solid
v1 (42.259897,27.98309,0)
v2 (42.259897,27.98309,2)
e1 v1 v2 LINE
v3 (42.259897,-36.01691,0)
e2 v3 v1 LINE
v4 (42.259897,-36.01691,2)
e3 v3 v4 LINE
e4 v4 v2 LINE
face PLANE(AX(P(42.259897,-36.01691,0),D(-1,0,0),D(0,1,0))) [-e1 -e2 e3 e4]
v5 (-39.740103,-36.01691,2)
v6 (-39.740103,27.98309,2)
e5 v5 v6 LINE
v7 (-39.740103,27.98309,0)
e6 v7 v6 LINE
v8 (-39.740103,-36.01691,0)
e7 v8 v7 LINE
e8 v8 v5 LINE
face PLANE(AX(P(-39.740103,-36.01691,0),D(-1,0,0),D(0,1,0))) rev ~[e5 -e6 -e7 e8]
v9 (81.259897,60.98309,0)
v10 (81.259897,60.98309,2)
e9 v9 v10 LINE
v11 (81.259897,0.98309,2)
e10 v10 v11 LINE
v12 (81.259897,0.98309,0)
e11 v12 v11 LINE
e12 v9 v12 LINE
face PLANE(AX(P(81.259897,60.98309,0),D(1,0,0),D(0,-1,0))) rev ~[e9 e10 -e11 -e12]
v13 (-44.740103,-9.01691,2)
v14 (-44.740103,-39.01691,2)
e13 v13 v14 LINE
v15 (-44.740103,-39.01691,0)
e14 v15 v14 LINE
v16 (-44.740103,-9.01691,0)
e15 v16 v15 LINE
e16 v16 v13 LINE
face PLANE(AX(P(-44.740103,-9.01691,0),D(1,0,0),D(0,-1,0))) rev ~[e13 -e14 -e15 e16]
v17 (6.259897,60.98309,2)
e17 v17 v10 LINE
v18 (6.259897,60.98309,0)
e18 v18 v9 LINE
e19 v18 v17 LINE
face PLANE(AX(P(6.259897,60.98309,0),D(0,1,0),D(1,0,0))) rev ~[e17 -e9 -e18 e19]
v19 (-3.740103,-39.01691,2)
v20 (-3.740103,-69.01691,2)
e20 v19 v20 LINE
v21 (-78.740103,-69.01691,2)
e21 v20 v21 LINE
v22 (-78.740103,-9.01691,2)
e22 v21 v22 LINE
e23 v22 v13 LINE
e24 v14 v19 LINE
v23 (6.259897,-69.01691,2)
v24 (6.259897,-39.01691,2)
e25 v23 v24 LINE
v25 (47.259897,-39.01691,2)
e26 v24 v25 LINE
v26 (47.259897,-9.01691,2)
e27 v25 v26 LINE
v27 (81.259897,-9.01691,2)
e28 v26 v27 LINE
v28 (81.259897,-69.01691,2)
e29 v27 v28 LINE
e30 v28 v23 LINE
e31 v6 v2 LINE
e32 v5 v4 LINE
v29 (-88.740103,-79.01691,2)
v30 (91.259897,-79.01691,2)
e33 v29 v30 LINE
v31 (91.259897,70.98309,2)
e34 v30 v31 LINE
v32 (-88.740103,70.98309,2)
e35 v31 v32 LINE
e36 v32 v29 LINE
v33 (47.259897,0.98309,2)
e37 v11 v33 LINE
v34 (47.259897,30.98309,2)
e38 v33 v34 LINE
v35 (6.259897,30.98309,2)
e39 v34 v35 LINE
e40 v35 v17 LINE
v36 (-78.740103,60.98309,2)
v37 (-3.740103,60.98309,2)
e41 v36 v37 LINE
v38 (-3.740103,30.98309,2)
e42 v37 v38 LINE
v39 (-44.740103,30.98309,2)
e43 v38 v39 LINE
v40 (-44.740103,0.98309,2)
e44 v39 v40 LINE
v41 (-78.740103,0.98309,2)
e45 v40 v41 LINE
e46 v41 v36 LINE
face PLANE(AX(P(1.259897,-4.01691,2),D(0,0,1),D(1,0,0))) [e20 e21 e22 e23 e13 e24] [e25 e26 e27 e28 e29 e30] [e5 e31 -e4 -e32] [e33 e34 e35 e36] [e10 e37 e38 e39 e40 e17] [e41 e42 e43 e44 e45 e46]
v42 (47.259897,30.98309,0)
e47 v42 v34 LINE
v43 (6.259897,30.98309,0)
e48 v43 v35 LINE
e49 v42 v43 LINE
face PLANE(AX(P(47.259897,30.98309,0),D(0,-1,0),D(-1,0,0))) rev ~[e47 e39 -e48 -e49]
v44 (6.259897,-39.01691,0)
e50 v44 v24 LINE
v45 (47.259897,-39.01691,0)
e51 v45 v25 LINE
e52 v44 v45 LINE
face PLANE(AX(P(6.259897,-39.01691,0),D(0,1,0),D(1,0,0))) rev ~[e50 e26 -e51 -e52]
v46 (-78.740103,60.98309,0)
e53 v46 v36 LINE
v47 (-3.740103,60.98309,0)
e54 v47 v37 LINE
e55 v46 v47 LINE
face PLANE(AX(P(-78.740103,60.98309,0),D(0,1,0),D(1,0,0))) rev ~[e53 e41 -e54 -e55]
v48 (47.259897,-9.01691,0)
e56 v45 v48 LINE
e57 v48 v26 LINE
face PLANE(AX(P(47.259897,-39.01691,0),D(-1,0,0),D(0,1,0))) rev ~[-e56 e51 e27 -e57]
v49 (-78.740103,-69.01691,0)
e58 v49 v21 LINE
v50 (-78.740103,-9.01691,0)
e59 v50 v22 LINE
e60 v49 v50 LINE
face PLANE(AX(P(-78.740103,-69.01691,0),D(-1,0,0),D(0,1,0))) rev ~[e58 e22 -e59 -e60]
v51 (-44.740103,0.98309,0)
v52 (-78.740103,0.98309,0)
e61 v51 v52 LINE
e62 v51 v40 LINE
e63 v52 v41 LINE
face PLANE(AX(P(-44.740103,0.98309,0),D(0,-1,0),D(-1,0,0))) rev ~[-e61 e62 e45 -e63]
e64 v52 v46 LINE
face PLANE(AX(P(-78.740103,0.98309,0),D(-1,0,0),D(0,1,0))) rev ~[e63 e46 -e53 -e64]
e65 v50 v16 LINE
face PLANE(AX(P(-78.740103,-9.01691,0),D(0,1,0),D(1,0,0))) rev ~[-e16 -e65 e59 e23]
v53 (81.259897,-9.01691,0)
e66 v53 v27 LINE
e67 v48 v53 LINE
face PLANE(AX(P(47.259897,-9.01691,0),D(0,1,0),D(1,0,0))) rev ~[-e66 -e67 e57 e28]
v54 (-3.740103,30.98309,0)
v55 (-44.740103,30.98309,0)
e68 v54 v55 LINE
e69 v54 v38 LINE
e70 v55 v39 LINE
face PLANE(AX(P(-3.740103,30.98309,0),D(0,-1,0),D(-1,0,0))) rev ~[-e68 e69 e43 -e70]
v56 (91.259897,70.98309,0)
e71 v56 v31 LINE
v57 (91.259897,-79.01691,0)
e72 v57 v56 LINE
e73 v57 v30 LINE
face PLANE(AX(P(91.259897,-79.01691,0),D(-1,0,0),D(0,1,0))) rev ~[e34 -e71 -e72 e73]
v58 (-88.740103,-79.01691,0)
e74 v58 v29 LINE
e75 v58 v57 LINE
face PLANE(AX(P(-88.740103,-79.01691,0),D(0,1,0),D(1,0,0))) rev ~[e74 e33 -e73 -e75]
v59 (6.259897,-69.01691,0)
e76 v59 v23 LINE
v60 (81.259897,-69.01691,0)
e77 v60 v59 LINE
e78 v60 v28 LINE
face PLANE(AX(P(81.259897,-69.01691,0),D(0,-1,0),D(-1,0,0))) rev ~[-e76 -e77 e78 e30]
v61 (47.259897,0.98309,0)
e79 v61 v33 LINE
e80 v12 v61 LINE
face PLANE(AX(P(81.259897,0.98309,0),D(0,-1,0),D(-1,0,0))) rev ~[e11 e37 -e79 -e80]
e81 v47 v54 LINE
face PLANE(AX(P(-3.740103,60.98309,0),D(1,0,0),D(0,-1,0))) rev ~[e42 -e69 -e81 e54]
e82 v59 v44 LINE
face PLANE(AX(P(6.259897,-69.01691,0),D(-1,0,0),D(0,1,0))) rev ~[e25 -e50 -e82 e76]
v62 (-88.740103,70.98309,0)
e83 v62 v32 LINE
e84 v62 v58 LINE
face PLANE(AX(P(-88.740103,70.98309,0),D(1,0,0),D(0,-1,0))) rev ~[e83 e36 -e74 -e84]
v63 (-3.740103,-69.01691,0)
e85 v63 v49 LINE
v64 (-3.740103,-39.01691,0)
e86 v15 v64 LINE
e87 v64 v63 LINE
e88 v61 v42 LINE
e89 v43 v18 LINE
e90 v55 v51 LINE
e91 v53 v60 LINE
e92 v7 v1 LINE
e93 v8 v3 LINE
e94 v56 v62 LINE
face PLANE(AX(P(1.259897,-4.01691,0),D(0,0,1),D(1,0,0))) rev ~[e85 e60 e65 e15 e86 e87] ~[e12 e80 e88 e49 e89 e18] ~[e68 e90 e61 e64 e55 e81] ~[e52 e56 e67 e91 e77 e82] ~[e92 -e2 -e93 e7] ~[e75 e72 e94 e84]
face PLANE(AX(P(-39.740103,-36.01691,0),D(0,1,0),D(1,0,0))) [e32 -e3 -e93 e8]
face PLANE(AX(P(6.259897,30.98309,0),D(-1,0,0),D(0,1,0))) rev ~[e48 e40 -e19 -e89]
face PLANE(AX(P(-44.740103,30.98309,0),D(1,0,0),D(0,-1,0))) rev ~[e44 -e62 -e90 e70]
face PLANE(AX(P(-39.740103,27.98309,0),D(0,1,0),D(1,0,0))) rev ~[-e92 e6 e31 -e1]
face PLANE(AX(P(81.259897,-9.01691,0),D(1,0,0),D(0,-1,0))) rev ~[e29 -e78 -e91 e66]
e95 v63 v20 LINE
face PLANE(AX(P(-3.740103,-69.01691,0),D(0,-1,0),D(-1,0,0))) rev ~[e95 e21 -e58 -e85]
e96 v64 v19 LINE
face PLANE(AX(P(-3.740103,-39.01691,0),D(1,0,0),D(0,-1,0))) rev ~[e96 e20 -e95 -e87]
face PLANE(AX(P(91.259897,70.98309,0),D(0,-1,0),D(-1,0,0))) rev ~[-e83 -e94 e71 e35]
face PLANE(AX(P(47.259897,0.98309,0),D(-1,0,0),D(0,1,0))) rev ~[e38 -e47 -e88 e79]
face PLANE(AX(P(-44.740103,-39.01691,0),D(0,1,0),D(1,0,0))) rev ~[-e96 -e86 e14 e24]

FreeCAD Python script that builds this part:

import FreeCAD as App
import Part
import Sketcher
from FreeCAD import Vector
Q = App.Units.Quantity

doc = App.newDocument("Part")
params = doc.addObject("Spreadsheet::Sheet", "Params")
for row, (alias, value) in enumerate([
    ("sketch1_width", "180 mm"),
    ("sketch1_width2", "75 mm"),
    ("sketch1_width3", "34 mm"),
    ("sketch1_width4", "82 mm"),
    ("sketch1_height", "150 mm"),
    ("pad1_length", "2 mm"),
], start=1):
    params.set(f"A{row}", alias)
    params.set(f"B{row}", "=" + value)
    params.setAlias(f"B{row}", alias)

body = doc.addObject("PartDesign::Body", "Body")

sketch1 = doc.addObject("Sketcher::SketchObject", "Sketch")
body.addObject(sketch1)
sketch1.AttachmentSupport = (doc.XY_Plane, [""])
sketch1.MapMode = "FlatFace"
sketch1.addGeometry(Part.LineSegment(Vector(-89, 71, 0), Vector(-89, -79, 0)), False)
sketch1.addGeometry(Part.LineSegment(Vector(-89, -79, 0), Vector(91, -79, 0)), False)
sketch1.addGeometry(Part.LineSegment(Vector(91, -79, 0), Vector(91, 71, 0)), False)
sketch1.addGeometry(Part.LineSegment(Vector(91, 71, 0), Vector(-89, 71, 0)), False)
sketch1.addGeometry(Part.LineSegment(Vector(-4, -69, 0), Vector(-79, -69, 0)), False)
sketch1.addGeometry(Part.LineSegment(Vector(-79, -69, 0), Vector(-79, -9, 0)), False)
sketch1.addGeometry(Part.LineSegment(Vector(-79, -9, 0), Vector(-45, -9, 0)), False)
sketch1.addGeometry(Part.LineSegment(Vector(-45, -9, 0), Vector(-45, -39, 0)), False)
sketch1.addGeometry(Part.LineSegment(Vector(-45, -39, 0), Vector(-4, -39, 0)), False)
sketch1.addGeometry(Part.LineSegment(Vector(-4, -39, 0), Vector(-4, -69, 0)), False)
sketch1.addGeometry(Part.LineSegment(Vector(6, -69, 0), Vector(6, -39, 0)), False)
sketch1.addGeometry(Part.LineSegment(Vector(6, -39, 0), Vector(47, -39, 0)), False)
sketch1.addGeometry(Part.LineSegment(Vector(47, -39, 0), Vector(47, -9, 0)), False)
sketch1.addGeometry(Part.LineSegment(Vector(47, -9, 0), Vector(81, -9, 0)), False)
sketch1.addGeometry(Part.LineSegment(Vector(81, -9, 0), Vector(81, -69, 0)), False)
sketch1.addGeometry(Part.LineSegment(Vector(81, -69, 0), Vector(6, -69, 0)), False)
sketch1.addGeometry(Part.LineSegment(Vector(-79, 1, 0), Vector(-79, 61, 0)), False)
sketch1.addGeometry(Part.LineSegment(Vector(-79, 61, 0), Vector(-4, 61, 0)), False)
sketch1.addGeometry(Part.LineSegment(Vector(-4, 61, 0), Vector(-4, 31, 0)), False)
sketch1.addGeometry(Part.LineSegment(Vector(-4, 31, 0), Vector(-45, 31, 0)), False)
sketch1.addGeometry(Part.LineSegment(Vector(-45, 31, 0), Vector(-45, 1, 0)), False)
sketch1.addGeometry(Part.LineSegment(Vector(-45, 1, 0), Vector(-79, 1, 0)), False)
sketch1.addGeometry(Part.LineSegment(Vector(42, -36, 0), Vector(-40, -36, 0)), False)
sketch1.addGeometry(Part.LineSegment(Vector(-40, -36, 0), Vector(-40, 28, 0)), False)
sketch1.addGeometry(Part.LineSegment(Vector(-40, 28, 0), Vector(42, 28, 0)), False)
sketch1.addGeometry(Part.LineSegment(Vector(42, 28, 0), Vector(42, -36, 0)), False)
sketch1.addGeometry(Part.LineSegment(Vector(47, 31, 0), Vector(6, 31, 0)), False)
sketch1.addGeometry(Part.LineSegment(Vector(6, 31, 0), Vector(6, 61, 0)), False)
sketch1.addGeometry(Part.LineSegment(Vector(6, 61, 0), Vector(81, 61, 0)), False)
sketch1.addGeometry(Part.LineSegment(Vector(81, 61, 0), Vector(81, 1, 0)), False)
sketch1.addGeometry(Part.LineSegment(Vector(81, 1, 0), Vector(47, 1, 0)), False)
sketch1.addGeometry(Part.LineSegment(Vector(47, 1, 0), Vector(47, 31, 0)), False)
sketch1.addConstraint(Sketcher.Constraint("Coincident", 0, 2, 1, 1))
sketch1.addConstraint(Sketcher.Constraint("Coincident", 1, 2, 2, 1))
sketch1.addConstraint(Sketcher.Constraint("Coincident", 2, 2, 3, 1))
sketch1.addConstraint(Sketcher.Constraint("Coincident", 3, 2, 0, 1))
sketch1.addConstraint(Sketcher.Constraint("Coincident", 4, 2, 5, 1))
sketch1.addConstraint(Sketcher.Constraint("Coincident", 5, 2, 6, 1))
sketch1.addConstraint(Sketcher.Constraint("Coincident", 6, 2, 7, 1))
sketch1.addConstraint(Sketcher.Constraint("Coincident", 7, 2, 8, 1))
sketch1.addConstraint(Sketcher.Constraint("Coincident", 8, 2, 9, 1))
sketch1.addConstraint(Sketcher.Constraint("Coincident", 9, 2, 4, 1))
sketch1.addConstraint(Sketcher.Constraint("Coincident", 10, 2, 11, 1))
sketch1.addConstraint(Sketcher.Constraint("Coincident", 11, 2, 12, 1))
sketch1.addConstraint(Sketcher.Constraint("Coincident", 12, 2, 13, 1))
sketch1.addConstraint(Sketcher.Constraint("Coincident", 13, 2, 14, 1))
sketch1.addConstraint(Sketcher.Constraint("Coincident", 14, 2, 15, 1))
sketch1.addConstraint(Sketcher.Constraint("Coincident", 15, 2, 10, 1))
sketch1.addConstraint(Sketcher.Constraint("Coincident", 16, 2, 17, 1))
sketch1.addConstraint(Sketcher.Constraint("Coincident", 17, 2, 18, 1))
sketch1.addConstraint(Sketcher.Constraint("Coincident", 18, 2, 19, 1))
sketch1.addConstraint(Sketcher.Constraint("Coincident", 19, 2, 20, 1))
sketch1.addConstraint(Sketcher.Constraint("Coincident", 20, 2, 21, 1))
sketch1.addConstraint(Sketcher.Constraint("Coincident", 21, 2, 16, 1))
sketch1.addConstraint(Sketcher.Constraint("Coincident", 22, 2, 23, 1))
sketch1.addConstraint(Sketcher.Constraint("Coincident", 23, 2, 24, 1))
sketch1.addConstraint(Sketcher.Constraint("Coincident", 24, 2, 25, 1))
sketch1.addConstraint(Sketcher.Constraint("Coincident", 25, 2, 22, 1))
sketch1.addConstraint(Sketcher.Constraint("Coincident", 26, 2, 27, 1))
sketch1.addConstraint(Sketcher.Constraint("Coincident", 27, 2, 28, 1))
sketch1.addConstraint(Sketcher.Constraint("Coincident", 28, 2, 29, 1))
sketch1.addConstraint(Sketcher.Constraint("Coincident", 29, 2, 30, 1))
sketch1.addConstraint(Sketcher.Constraint("Coincident", 30, 2, 31, 1))
sketch1.addConstraint(Sketcher.Constraint("Coincident", 31, 2, 26, 1))
sketch1.addConstraint(Sketcher.Constraint("Vertical", 0))
sketch1.addConstraint(Sketcher.Constraint("Horizontal", 1))
sketch1.addConstraint(Sketcher.Constraint("Vertical", 2))
sketch1.addConstraint(Sketcher.Constraint("Horizontal", 3))
sketch1.addConstraint(Sketcher.Constraint("Horizontal", 4))
sketch1.addConstraint(Sketcher.Constraint("Vertical", 5))
sketch1.addConstraint(Sketcher.Constraint("Horizontal", 6))
sketch1.addConstraint(Sketcher.Constraint("Vertical", 7))
sketch1.addConstraint(Sketcher.Constraint("Horizontal", 8))
sketch1.addConstraint(Sketcher.Constraint("Vertical", 9))
sketch1.addConstraint(Sketcher.Constraint("Vertical", 10))
sketch1.addConstraint(Sketcher.Constraint("Horizontal", 11))
sketch1.addConstraint(Sketcher.Constraint("Vertical", 12))
sketch1.addConstraint(Sketcher.Constraint("Horizontal", 13))
sketch1.addConstraint(Sketcher.Constraint("Vertical", 14))
sketch1.addConstraint(Sketcher.Constraint("Horizontal", 15))
sketch1.addConstraint(Sketcher.Constraint("Vertical", 16))
sketch1.addConstraint(Sketcher.Constraint("Horizontal", 17))
sketch1.addConstraint(Sketcher.Constraint("Vertical", 18))
sketch1.addConstraint(Sketcher.Constraint("Horizontal", 19))
sketch1.addConstraint(Sketcher.Constraint("Vertical", 20))
sketch1.addConstraint(Sketcher.Constraint("Horizontal", 21))
sketch1.addConstraint(Sketcher.Constraint("Horizontal", 22))
sketch1.addConstraint(Sketcher.Constraint("Vertical", 23))
sketch1.addConstraint(Sketcher.Constraint("Horizontal", 24))
sketch1.addConstraint(Sketcher.Constraint("Vertical", 25))
sketch1.addConstraint(Sketcher.Constraint("Horizontal", 26))
sketch1.addConstraint(Sketcher.Constraint("Vertical", 27))
sketch1.addConstraint(Sketcher.Constraint("Horizontal", 28))
sketch1.addConstraint(Sketcher.Constraint("Vertical", 29))
sketch1.addConstraint(Sketcher.Constraint("Horizontal", 30))
sketch1.addConstraint(Sketcher.Constraint("Vertical", 31))
sketch1.addConstraint(Sketcher.Constraint("Horizontal", 8, 2, 10, 2))
sketch1.addConstraint(Sketcher.Constraint("Horizontal", 6, 2, 12, 2))
sketch1.addConstraint(Sketcher.Constraint("Horizontal", 9, 2, 14, 2))
sketch1.addConstraint(Sketcher.Constraint("Horizontal", 19, 2, 26, 2))
sketch1.addConstraint(Sketcher.Constraint("Horizontal", 17, 2, 27, 2))
sketch1.addConstraint(Sketcher.Constraint("Horizontal", 21, 2, 29, 2))
sketch1.addConstraint(Sketcher.Constraint("Vertical", 5, 2, 16, 2))
sketch1.addConstraint(Sketcher.Constraint("Vertical", 9, 2, 17, 2))
sketch1.addConstraint(Sketcher.Constraint("Vertical", 7, 2, 19, 2))
sketch1.addConstraint(Sketcher.Constraint("Vertical", 15, 2, 26, 2))
sketch1.addConstraint(Sketcher.Constraint("Vertical", 14, 2, 28, 2))
sketch1.addConstraint(Sketcher.Constraint("Vertical", 12, 2, 30, 2))
sketch1.addConstraint(Sketcher.Constraint("Equal", 8, 11))
sketch1.addConstraint(Sketcher.Constraint("Equal", 6, 13))
sketch1.addConstraint(Sketcher.Constraint("Equal", 7, 9))
sketch1.addConstraint(Sketcher.Constraint("Equal", 14, 16))
sketch1.addConstraint(Sketcher.Constraint("Equal", 12, 18))
sketch1.addConstraint(Sketcher.Constraint("DistanceX", 1, 1, 1, 2, Q("180 mm")))
sketch1.addConstraint(Sketcher.Constraint("DistanceX", 4, 2, 4, 1, Q("75 mm")))
sketch1.addConstraint(Sketcher.Constraint("DistanceX", 6, 1, 6, 2, Q("34 mm")))
sketch1.addConstraint(Sketcher.Constraint("DistanceX", 22, 2, 22, 1, Q("82 mm")))
sketch1.addConstraint(Sketcher.Constraint("DistanceY", 0, 2, 0, 1, Q("150 mm")))
sketch1.addConstraint(Sketcher.Constraint("DistanceY", 5, 1, 5, 2, Q("60 mm")))
sketch1.addConstraint(Sketcher.Constraint("DistanceY", 23, 1, 23, 2, Q("64 mm")))
sketch1.addConstraint(Sketcher.Constraint("DistanceX", 0, 2, 4, 2, Q("10 mm")))
sketch1.addConstraint(Sketcher.Constraint("DistanceY", 0, 2, 4, 2, Q("10 mm")))
sketch1.addConstraint(Sketcher.Constraint("DistanceX", 8, 2, 10, 2, Q("10 mm")))
sketch1.addConstraint(Sketcher.Constraint("DistanceY", 16, 2, 3, 2, Q("10 mm")))
sketch1.addConstraint(Sketcher.Constraint("DistanceX", 7, 2, 22, 2, Q("5 mm")))
sketch1.addConstraint(Sketcher.Constraint("DistanceY", 7, 2, 22, 2, Q("3 mm")))
sketch1.addConstraint(Sketcher.Constraint("DistanceY", 0, 2, -1, 1, Q("79.01691 mm")))
sketch1.addConstraint(Sketcher.Constraint("DistanceX", 0, 2, -1, 1, Q("88.740103 mm")))
sketch1.setExpression("Constraints[81]", "Params.sketch1_width")
sketch1.setExpression("Constraints[82]", "Params.sketch1_width2")
sketch1.setExpression("Constraints[83]", "Params.sketch1_width3")
sketch1.setExpression("Constraints[84]", "Params.sketch1_width4")
sketch1.setExpression("Constraints[85]", "Params.sketch1_height")
pad1 = doc.addObject("PartDesign::Pad", "Pad")
body.addObject(pad1)
pad1.Profile = sketch1
pad1.setExpression("Length", "Params.pad1_length")

doc.recompute()
